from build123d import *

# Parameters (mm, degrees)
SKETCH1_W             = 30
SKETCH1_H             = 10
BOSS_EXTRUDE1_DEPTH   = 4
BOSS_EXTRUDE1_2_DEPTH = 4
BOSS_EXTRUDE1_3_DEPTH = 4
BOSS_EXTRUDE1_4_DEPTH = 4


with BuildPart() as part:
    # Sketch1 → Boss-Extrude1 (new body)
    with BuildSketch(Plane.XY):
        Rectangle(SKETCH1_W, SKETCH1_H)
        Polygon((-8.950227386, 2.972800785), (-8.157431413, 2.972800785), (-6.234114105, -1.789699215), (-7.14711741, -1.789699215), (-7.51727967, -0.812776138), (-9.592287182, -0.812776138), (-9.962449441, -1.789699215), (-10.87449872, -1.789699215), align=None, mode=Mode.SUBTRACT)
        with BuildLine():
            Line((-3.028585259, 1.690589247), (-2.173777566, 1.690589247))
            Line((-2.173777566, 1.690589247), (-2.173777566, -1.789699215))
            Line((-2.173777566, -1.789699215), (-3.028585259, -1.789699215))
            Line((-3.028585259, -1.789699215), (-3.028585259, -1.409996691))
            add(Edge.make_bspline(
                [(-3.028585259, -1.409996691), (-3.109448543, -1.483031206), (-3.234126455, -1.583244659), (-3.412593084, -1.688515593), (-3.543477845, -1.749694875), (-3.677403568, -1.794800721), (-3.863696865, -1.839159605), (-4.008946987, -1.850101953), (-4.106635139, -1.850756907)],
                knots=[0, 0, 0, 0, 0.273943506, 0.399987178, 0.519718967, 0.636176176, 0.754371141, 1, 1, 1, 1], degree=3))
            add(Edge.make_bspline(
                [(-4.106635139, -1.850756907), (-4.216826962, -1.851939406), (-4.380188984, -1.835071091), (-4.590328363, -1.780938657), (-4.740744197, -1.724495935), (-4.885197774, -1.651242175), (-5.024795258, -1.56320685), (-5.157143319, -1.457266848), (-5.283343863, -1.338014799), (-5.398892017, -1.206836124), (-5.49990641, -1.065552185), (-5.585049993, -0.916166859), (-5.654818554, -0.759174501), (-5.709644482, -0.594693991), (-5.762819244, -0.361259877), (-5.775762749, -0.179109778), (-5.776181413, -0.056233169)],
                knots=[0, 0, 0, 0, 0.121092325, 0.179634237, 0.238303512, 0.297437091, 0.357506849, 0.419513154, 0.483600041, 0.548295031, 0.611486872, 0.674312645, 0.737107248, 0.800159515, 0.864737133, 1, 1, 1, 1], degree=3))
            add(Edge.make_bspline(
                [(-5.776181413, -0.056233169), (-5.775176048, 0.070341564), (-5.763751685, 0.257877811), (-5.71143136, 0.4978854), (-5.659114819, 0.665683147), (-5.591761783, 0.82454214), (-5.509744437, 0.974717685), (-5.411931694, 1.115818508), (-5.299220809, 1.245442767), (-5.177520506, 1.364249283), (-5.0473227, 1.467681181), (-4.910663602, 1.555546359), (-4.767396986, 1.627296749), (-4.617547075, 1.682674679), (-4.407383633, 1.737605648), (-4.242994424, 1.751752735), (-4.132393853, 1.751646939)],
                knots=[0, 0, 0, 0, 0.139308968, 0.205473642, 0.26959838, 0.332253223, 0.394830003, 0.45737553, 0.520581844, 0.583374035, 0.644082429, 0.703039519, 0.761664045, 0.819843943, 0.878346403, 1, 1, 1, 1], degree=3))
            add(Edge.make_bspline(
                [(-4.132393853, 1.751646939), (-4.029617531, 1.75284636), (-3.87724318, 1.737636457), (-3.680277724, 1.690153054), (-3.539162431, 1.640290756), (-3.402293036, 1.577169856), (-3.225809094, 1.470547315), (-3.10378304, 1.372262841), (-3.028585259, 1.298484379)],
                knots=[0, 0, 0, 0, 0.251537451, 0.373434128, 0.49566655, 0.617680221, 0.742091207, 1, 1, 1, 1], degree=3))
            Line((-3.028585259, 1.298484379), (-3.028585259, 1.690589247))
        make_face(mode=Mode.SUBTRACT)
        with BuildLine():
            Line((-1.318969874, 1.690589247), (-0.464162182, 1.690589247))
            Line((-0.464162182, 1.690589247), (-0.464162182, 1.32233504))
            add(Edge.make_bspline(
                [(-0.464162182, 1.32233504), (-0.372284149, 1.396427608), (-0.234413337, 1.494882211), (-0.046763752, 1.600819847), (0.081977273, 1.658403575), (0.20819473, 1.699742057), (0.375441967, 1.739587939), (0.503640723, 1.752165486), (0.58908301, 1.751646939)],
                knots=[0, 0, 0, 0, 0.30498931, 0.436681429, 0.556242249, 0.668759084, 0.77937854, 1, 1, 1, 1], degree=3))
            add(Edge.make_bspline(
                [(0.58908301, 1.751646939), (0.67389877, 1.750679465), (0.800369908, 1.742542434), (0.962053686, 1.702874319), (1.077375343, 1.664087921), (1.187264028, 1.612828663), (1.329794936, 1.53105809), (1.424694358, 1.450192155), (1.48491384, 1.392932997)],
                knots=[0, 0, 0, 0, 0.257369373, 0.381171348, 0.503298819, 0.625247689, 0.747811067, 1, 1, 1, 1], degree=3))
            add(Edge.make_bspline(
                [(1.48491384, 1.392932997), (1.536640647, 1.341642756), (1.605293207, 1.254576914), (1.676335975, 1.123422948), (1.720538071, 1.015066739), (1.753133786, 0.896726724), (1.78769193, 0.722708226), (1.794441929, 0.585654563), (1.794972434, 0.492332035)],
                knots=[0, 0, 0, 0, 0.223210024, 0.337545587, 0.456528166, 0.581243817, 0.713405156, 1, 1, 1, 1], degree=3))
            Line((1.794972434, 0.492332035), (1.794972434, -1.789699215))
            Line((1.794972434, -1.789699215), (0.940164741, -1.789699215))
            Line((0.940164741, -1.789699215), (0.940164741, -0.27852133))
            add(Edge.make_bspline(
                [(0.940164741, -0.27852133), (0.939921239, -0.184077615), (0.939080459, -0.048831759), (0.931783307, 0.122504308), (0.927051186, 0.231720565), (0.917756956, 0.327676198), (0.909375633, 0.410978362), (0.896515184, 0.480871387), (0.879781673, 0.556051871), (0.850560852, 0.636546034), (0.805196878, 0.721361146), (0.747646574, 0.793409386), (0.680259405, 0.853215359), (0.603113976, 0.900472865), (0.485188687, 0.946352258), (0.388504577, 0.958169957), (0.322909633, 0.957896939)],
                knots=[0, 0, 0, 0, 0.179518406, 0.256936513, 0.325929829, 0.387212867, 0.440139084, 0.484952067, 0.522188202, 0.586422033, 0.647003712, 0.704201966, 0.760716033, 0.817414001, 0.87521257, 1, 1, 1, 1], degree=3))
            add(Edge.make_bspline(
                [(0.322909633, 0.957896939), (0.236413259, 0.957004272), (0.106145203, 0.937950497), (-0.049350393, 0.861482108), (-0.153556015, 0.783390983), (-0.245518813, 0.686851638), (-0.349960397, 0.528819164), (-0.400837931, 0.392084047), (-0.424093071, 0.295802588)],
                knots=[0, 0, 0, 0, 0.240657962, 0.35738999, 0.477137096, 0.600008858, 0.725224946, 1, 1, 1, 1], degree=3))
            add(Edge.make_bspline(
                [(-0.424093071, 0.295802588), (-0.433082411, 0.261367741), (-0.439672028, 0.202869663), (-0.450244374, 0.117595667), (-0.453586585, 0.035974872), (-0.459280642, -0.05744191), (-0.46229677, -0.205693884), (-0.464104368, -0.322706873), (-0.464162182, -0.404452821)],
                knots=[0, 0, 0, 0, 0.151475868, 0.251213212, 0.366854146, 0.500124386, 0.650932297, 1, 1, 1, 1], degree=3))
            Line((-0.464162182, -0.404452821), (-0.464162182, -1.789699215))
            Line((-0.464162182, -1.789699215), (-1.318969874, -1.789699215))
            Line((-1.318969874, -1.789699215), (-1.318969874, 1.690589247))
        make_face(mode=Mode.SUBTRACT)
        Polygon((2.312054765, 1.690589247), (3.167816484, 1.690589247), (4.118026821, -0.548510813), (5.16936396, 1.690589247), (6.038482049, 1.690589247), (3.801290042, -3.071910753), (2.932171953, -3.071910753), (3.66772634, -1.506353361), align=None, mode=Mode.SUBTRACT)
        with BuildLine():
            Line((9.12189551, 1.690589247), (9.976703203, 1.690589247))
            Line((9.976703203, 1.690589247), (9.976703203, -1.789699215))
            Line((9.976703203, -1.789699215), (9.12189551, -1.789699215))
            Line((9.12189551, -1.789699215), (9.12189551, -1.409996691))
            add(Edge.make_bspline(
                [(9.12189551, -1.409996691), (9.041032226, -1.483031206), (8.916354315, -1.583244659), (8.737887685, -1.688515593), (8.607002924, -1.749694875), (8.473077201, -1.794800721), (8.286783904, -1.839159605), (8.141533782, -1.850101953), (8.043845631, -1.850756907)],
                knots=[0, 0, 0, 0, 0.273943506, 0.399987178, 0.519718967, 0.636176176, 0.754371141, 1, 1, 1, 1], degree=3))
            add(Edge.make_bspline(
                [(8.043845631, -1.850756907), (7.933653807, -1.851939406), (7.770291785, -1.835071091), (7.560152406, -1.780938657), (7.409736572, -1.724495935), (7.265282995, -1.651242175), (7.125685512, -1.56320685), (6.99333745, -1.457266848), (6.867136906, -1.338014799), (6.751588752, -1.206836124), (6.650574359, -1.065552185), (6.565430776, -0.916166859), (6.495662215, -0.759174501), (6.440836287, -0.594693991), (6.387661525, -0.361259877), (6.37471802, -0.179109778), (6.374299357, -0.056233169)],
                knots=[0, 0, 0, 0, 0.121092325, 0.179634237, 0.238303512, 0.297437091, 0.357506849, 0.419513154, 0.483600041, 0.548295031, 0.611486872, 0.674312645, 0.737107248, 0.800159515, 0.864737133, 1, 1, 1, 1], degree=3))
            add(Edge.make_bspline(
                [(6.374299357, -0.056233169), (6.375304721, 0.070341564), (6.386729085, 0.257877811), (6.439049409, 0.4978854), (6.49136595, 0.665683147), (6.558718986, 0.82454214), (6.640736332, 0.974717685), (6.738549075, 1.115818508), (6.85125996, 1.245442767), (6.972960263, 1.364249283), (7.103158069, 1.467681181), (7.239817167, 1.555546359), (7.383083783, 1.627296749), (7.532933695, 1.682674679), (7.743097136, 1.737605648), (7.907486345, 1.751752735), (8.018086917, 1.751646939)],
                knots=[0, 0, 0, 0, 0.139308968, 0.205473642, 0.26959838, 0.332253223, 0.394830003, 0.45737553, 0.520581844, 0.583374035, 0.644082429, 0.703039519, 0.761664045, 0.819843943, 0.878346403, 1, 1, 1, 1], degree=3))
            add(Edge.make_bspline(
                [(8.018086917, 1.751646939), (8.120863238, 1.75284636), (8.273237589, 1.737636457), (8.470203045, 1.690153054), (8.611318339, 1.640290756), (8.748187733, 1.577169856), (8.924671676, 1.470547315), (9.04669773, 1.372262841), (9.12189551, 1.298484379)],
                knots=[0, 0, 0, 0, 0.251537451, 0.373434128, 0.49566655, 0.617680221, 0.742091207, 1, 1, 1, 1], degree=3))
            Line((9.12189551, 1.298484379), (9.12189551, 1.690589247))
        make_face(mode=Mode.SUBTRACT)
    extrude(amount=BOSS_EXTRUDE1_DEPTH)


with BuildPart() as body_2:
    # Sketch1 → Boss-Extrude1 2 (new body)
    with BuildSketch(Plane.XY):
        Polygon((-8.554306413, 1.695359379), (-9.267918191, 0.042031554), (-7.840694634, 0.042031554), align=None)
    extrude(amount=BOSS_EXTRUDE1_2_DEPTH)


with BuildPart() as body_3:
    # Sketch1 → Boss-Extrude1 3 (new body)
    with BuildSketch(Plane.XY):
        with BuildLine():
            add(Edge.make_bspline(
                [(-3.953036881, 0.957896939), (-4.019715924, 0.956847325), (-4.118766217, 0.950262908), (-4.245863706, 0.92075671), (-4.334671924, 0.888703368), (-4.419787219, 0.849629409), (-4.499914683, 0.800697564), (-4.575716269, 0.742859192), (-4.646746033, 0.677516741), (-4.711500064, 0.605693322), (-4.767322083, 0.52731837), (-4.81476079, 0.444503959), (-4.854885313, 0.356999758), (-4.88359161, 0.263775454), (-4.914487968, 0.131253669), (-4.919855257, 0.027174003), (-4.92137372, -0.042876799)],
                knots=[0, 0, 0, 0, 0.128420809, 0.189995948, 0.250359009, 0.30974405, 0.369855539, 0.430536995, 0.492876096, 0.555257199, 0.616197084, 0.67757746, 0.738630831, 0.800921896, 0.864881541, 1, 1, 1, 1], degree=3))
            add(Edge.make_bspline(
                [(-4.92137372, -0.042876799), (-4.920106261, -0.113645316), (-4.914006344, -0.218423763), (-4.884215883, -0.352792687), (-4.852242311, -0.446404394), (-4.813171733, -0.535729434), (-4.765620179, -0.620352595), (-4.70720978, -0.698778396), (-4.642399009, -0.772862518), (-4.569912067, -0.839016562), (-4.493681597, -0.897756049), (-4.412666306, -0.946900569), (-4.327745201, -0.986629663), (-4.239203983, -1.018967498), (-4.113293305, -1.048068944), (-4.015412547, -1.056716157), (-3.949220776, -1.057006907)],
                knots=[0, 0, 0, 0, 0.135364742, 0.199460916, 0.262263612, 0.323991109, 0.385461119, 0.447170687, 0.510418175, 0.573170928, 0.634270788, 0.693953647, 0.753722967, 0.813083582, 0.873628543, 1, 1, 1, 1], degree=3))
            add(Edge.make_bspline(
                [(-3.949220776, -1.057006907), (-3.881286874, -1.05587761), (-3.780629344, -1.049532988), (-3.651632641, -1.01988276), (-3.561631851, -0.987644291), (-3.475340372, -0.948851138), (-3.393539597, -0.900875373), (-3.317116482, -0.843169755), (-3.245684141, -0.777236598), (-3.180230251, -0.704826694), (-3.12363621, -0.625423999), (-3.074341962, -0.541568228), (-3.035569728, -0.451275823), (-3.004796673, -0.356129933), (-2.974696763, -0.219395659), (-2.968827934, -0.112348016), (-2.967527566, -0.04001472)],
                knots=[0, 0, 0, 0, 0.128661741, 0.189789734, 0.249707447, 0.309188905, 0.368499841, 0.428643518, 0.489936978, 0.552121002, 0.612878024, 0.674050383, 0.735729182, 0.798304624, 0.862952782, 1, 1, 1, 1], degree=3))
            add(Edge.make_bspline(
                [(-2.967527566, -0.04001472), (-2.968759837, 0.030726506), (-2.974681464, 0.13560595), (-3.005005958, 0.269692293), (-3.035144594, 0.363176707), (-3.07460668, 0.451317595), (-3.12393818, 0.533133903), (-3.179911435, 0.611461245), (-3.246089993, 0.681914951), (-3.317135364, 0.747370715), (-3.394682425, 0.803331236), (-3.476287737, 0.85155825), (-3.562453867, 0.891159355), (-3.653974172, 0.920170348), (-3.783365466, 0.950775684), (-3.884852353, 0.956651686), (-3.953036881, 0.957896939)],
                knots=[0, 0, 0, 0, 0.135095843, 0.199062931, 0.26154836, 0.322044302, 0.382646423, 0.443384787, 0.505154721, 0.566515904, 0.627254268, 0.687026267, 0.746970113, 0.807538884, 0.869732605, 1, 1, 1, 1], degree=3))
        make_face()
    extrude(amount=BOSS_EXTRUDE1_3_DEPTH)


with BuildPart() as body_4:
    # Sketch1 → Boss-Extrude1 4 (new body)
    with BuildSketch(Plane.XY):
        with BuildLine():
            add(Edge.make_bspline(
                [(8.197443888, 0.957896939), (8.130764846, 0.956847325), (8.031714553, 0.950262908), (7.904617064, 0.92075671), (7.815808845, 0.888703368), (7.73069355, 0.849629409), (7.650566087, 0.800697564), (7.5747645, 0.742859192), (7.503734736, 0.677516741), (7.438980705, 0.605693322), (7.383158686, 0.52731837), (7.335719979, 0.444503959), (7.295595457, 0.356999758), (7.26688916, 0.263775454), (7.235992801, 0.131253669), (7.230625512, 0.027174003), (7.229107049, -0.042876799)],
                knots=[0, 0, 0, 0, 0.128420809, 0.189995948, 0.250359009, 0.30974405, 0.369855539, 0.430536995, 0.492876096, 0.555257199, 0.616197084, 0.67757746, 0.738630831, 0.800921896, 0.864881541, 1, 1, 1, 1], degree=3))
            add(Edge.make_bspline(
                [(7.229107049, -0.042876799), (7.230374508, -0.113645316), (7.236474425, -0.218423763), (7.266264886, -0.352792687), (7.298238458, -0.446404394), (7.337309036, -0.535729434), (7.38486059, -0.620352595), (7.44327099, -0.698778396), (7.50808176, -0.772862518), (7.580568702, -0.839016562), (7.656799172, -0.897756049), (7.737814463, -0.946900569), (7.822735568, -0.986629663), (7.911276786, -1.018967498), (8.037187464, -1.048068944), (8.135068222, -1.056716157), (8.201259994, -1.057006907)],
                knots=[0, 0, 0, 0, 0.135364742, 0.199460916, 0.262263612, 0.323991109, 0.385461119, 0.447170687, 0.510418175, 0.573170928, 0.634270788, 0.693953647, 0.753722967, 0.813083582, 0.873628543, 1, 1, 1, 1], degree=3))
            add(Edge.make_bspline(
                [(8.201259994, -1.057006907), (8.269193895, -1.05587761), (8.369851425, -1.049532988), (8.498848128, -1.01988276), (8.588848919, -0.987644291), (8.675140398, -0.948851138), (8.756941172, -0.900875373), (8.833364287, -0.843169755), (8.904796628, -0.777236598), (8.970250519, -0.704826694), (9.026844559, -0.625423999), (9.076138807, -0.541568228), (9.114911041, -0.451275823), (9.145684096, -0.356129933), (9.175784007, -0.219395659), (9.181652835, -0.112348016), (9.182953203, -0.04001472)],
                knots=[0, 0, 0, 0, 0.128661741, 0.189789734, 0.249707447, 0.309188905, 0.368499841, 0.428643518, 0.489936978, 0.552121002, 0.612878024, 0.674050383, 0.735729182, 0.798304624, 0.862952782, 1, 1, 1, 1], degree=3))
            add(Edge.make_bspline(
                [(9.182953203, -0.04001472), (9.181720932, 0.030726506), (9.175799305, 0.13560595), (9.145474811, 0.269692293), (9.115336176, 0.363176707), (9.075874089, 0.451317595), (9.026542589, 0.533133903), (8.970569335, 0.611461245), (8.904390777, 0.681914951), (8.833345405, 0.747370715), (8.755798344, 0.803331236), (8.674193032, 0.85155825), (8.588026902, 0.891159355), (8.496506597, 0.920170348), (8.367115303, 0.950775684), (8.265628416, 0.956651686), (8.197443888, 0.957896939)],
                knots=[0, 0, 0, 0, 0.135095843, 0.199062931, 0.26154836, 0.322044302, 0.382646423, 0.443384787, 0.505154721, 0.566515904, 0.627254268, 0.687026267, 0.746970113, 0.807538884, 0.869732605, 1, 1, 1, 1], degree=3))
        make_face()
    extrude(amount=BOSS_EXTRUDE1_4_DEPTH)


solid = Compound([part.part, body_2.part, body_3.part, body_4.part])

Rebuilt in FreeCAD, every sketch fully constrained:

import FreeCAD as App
import Part
import Sketcher
Q = App.Units.Quantity


def add_polygon(sketch, points):
    """Adds a closed chain of lines whose ends are joined by coincident constraints."""
    first, n = sketch.GeometryCount, len(points)
    for a, b in zip(points, points[1:] + points[:1]):
        sketch.addGeometry(Part.LineSegment(App.Vector(*a, 0), App.Vector(*b, 0)), False)
    for i in range(n):
        sketch.addConstraint(Sketcher.Constraint("Coincident", first + i, 2, first + (i + 1) % n, 1))

doc = App.newDocument("Part")
body = doc.addObject("PartDesign::Body", "Body")

sketch1 = body.newObject("Sketcher::SketchObject", "Sketch")
sketch1.AttachmentSupport = (doc.getObject("XY_Plane"), [""])
sketch1.MapMode = "FlatFace"
add_polygon(sketch1, [(-15, 5), (-15, -5), (15, -5), (15, 5)])
add_polygon(sketch1, [(3.667726, -1.506353), (2.312055, 1.690589), (3.167816, 1.690589), (4.118027, -0.548511), (5.169364, 1.690589), (6.038482, 1.690589), (3.80129, -3.071911), (2.932172, -3.071911)])
add_polygon(sketch1, [(-10.874499, -1.789699), (-8.950227, 2.972801), (-8.157431, 2.972801), (-6.234114, -1.789699), (-7.147117, -1.789699), (-7.51728, -0.812776), (-9.592287, -0.812776), (-9.962449, -1.789699)])
sketch1.addGeometry(Part.LineSegment(App.Vector(-3.028585, 1.298484, 0), App.Vector(-3.028585, 1.690589, 0)), False)
sketch1.addGeometry(Part.LineSegment(App.Vector(-3.028585, 1.690589, 0), App.Vector(-2.173778, 1.690589, 0)), False)
sketch1.addGeometry(Part.LineSegment(App.Vector(-2.173778, 1.690589, 0), App.Vector(-2.173778, -1.789699, 0)), False)
sketch1.addGeometry(Part.LineSegment(App.Vector(-2.173778, -1.789699, 0), App.Vector(-3.028585, -1.789699, 0)), False)
sketch1.addGeometry(Part.LineSegment(App.Vector(-3.028585, -1.789699, 0), App.Vector(-3.028585, -1.409997, 0)), False)
sketch1.addGeometry(Part.BSplineCurve([App.Vector(-3.028585, -1.409997, 0), App.Vector(-3.109449, -1.483031, 0), App.Vector(-3.234126, -1.583245, 0), App.Vector(-3.412593, -1.688516, 0), App.Vector(-3.543478, -1.749695, 0), App.Vector(-3.677404, -1.794801, 0), App.Vector(-3.863697, -1.83916, 0), App.Vector(-4.008947, -1.850102, 0), App.Vector(-4.106635, -1.850757, 0)], [4, 1, 1, 1, 1, 1, 4], [0, 0.273943506, 0.399987178, 0.519718967, 0.636176176, 0.754371141, 1], False, 3, [1, 1, 1, 1, 1, 1, 1, 1, 1], False), False)
sketch1.addGeometry(Part.BSplineCurve([App.Vector(-4.106635, -1.850757, 0), App.Vector(-4.216827, -1.851939, 0), App.Vector(-4.380189, -1.835071, 0), App.Vector(-4.590328, -1.780939, 0), App.Vector(-4.740744, -1.724496, 0), App.Vector(-4.885198, -1.651242, 0), App.Vector(-5.024795, -1.563207, 0), App.Vector(-5.157143, -1.457267, 0), App.Vector(-5.283344, -1.338015, 0), App.Vector(-5.398892, -1.206836, 0), App.Vector(-5.499906, -1.065552, 0), App.Vector(-5.58505, -0.916167, 0), App.Vector(-5.654819, -0.759175, 0), App.Vector(-5.709644, -0.594694, 0), App.Vector(-5.762819, -0.36126, 0), App.Vector(-5.775763, -0.17911, 0), App.Vector(-5.776181, -0.056233, 0)], [4, 1, 1, 1, 1, 1, 1, 1, 1, 1, 1, 1, 1, 1, 4], [0, 0.121092325, 0.179634237, 0.238303512, 0.297437091, 0.357506849, 0.419513154, 0.483600041, 0.548295031, 0.611486872, 0.674312645, 0.737107248, 0.800159515, 0.864737133, 1], False, 3, [1, 1, 1, 1, 1, 1, 1, 1, 1, 1, 1, 1, 1, 1, 1, 1, 1], False), False)
sketch1.addGeometry(Part.BSplineCurve([App.Vector(-5.776181, -0.056233, 0), App.Vector(-5.775176, 0.070342, 0), App.Vector(-5.763752, 0.257878, 0), App.Vector(-5.711431, 0.497885, 0), App.Vector(-5.659115, 0.665683, 0), App.Vector(-5.591762, 0.824542, 0), App.Vector(-5.509744, 0.974718, 0), App.Vector(-5.411932, 1.115819, 0), App.Vector(-5.299221, 1.245443, 0), App.Vector(-5.177521, 1.364249, 0), App.Vector(-5.047323, 1.467681, 0), App.Vector(-4.910664, 1.555546, 0), App.Vector(-4.767397, 1.627297, 0), App.Vector(-4.617547, 1.682675, 0), App.Vector(-4.407384, 1.737606, 0), App.Vector(-4.242994, 1.751753, 0), App.Vector(-4.132394, 1.751647, 0)], [4, 1, 1, 1, 1, 1, 1, 1, 1, 1, 1, 1, 1, 1, 4], [0, 0.139308968, 0.205473642, 0.26959838, 0.332253223, 0.394830003, 0.45737553, 0.520581844, 0.583374035, 0.644082429, 0.703039519, 0.761664045, 0.819843943, 0.878346403, 1], False, 3, [1, 1, 1, 1, 1, 1, 1, 1, 1, 1, 1, 1, 1, 1, 1, 1, 1], False), False)
sketch1.addGeometry(Part.BSplineCurve([App.Vector(-4.132394, 1.751647, 0), App.Vector(-4.029618, 1.752846, 0), App.Vector(-3.877243, 1.737636, 0), App.Vector(-3.680278, 1.690153, 0), App.Vector(-3.539162, 1.640291, 0), App.Vector(-3.402293, 1.57717, 0), App.Vector(-3.225809, 1.470547, 0), App.Vector(-3.103783, 1.372263, 0), App.Vector(-3.028585, 1.298484, 0)], [4, 1, 1, 1, 1, 1, 4], [0, 0.251537451, 0.373434128, 0.49566655, 0.617680221, 0.742091207, 1], False, 3, [1, 1, 1, 1, 1, 1, 1, 1, 1], False), False)
sketch1.addGeometry(Part.LineSegment(App.Vector(-1.31897, -1.789699, 0), App.Vector(-1.31897, 1.690589, 0)), False)
sketch1.addGeometry(Part.LineSegment(App.Vector(-1.31897, 1.690589, 0), App.Vector(-0.464162, 1.690589, 0)), False)
sketch1.addGeometry(Part.LineSegment(App.Vector(-0.464162, 1.690589, 0), App.Vector(-0.464162, 1.322335, 0)), False)
sketch1.addGeometry(Part.BSplineCurve([App.Vector(-0.464162, 1.322335, 0), App.Vector(-0.372284, 1.396428, 0), App.Vector(-0.234413, 1.494882, 0), App.Vector(-0.046764, 1.60082, 0), App.Vector(0.081977, 1.658404, 0), App.Vector(0.208195, 1.699742, 0), App.Vector(0.375442, 1.739588, 0), App.Vector(0.503641, 1.752165, 0), App.Vector(0.589083, 1.751647, 0)], [4, 1, 1, 1, 1, 1, 4], [0, 0.30498931, 0.436681429, 0.556242249, 0.668759084, 0.77937854, 1], False, 3, [1, 1, 1, 1, 1, 1, 1, 1, 1], False), False)
sketch1.addGeometry(Part.BSplineCurve([App.Vector(0.589083, 1.751647, 0), App.Vector(0.673899, 1.750679, 0), App.Vector(0.80037, 1.742542, 0), App.Vector(0.962054, 1.702874, 0), App.Vector(1.077375, 1.664088, 0), App.Vector(1.187264, 1.612829, 0), App.Vector(1.329795, 1.531058, 0), App.Vector(1.424694, 1.450192, 0), App.Vector(1.484914, 1.392933, 0)], [4, 1, 1, 1, 1, 1, 4], [0, 0.257369373, 0.381171348, 0.503298819, 0.625247689, 0.747811067, 1], False, 3, [1, 1, 1, 1, 1, 1, 1, 1, 1], False), False)
sketch1.addGeometry(Part.BSplineCurve([App.Vector(1.484914, 1.392933, 0), App.Vector(1.536641, 1.341643, 0), App.Vector(1.605293, 1.254577, 0), App.Vector(1.676336, 1.123423, 0), App.Vector(1.720538, 1.015067, 0), App.Vector(1.753134, 0.896727, 0), App.Vector(1.787692, 0.722708, 0), App.Vector(1.794442, 0.585655, 0), App.Vector(1.794972, 0.492332, 0)], [4, 1, 1, 1, 1, 1, 4], [0, 0.223210024, 0.337545587, 0.456528166, 0.581243817, 0.713405156, 1], False, 3, [1, 1, 1, 1, 1, 1, 1, 1, 1], False), False)
sketch1.addGeometry(Part.LineSegment(App.Vector(1.794972, 0.492332, 0), App.Vector(1.794972, -1.789699, 0)), False)
sketch1.addGeometry(Part.LineSegment(App.Vector(1.794972, -1.789699, 0), App.Vector(0.940165, -1.789699, 0)), False)
sketch1.addGeometry(Part.LineSegment(App.Vector(0.940165, -1.789699, 0), App.Vector(0.940165, -0.278521, 0)), False)
sketch1.addGeometry(Part.BSplineCurve([App.Vector(0.940165, -0.278521, 0), App.Vector(0.939921, -0.184078, 0), App.Vector(0.93908, -0.048832, 0), App.Vector(0.931783, 0.122504, 0), App.Vector(0.927051, 0.231721, 0), App.Vector(0.917757, 0.327676, 0), App.Vector(0.909376, 0.410978, 0), App.Vector(0.896515, 0.480871, 0), App.Vector(0.879782, 0.556052, 0), App.Vector(0.850561, 0.636546, 0), App.Vector(0.805197, 0.721361, 0), App.Vector(0.747647, 0.793409, 0), App.Vector(0.680259, 0.853215, 0), App.Vector(0.603114, 0.900473, 0), App.Vector(0.485189, 0.946352, 0), App.Vector(0.388505, 0.95817, 0), App.Vector(0.32291, 0.957897, 0)], [4, 1, 1, 1, 1, 1, 1, 1, 1, 1, 1, 1, 1, 1, 4], [0, 0.179518406, 0.256936513, 0.325929829, 0.387212867, 0.440139084, 0.484952067, 0.522188202, 0.586422033, 0.647003712, 0.704201966, 0.760716033, 0.817414001, 0.87521257, 1], False, 3, [1, 1, 1, 1, 1, 1, 1, 1, 1, 1, 1, 1, 1, 1, 1, 1, 1], False), False)
sketch1.addGeometry(Part.BSplineCurve([App.Vector(0.32291, 0.957897, 0), App.Vector(0.236413, 0.957004, 0), App.Vector(0.106145, 0.93795, 0), App.Vector(-0.04935, 0.861482, 0), App.Vector(-0.153556, 0.783391, 0), App.Vector(-0.245519, 0.686852, 0), App.Vector(-0.34996, 0.528819, 0), App.Vector(-0.400838, 0.392084, 0), App.Vector(-0.424093, 0.295803, 0)], [4, 1, 1, 1, 1, 1, 4], [0, 0.240657962, 0.35738999, 0.477137096, 0.600008858, 0.725224946, 1], False, 3, [1, 1, 1, 1, 1, 1, 1, 1, 1], False), False)
sketch1.addGeometry(Part.BSplineCurve([App.Vector(-0.424093, 0.295803, 0), App.Vector(-0.433082, 0.261368, 0), App.Vector(-0.439672, 0.20287, 0), App.Vector(-0.450244, 0.117596, 0), App.Vector(-0.453587, 0.035975, 0), App.Vector(-0.459281, -0.057442, 0), App.Vector(-0.462297, -0.205694, 0), App.Vector(-0.464104, -0.322707, 0), App.Vector(-0.464162, -0.404453, 0)], [4, 1, 1, 1, 1, 1, 4], [0, 0.151475868, 0.251213212, 0.366854146, 0.500124386, 0.650932297, 1], False, 3, [1, 1, 1, 1, 1, 1, 1, 1, 1], False), False)
sketch1.addGeometry(Part.LineSegment(App.Vector(-0.464162, -0.404453, 0), App.Vector(-0.464162, -1.789699, 0)), False)
sketch1.addGeometry(Part.LineSegment(App.Vector(-0.464162, -1.789699, 0), App.Vector(-1.31897, -1.789699, 0)), False)
sketch1.addGeometry(Part.LineSegment(App.Vector(9.121896, 1.298484, 0), App.Vector(9.121896, 1.690589, 0)), False)
sketch1.addGeometry(Part.LineSegment(App.Vector(9.121896, 1.690589, 0), App.Vector(9.976703, 1.690589, 0)), False)
sketch1.addGeometry(Part.LineSegment(App.Vector(9.976703, 1.690589, 0), App.Vector(9.976703, -1.789699, 0)), False)
sketch1.addGeometry(Part.LineSegment(App.Vector(9.976703, -1.789699, 0), App.Vector(9.121896, -1.789699, 0)), False)
sketch1.addGeometry(Part.LineSegment(App.Vector(9.121896, -1.789699, 0), App.Vector(9.121896, -1.409997, 0)), False)
sketch1.addGeometry(Part.BSplineCurve([App.Vector(9.121896, -1.409997, 0), App.Vector(9.041032, -1.483031, 0), App.Vector(8.916354, -1.583245, 0), App.Vector(8.737888, -1.688516, 0), App.Vector(8.607003, -1.749695, 0), App.Vector(8.473077, -1.794801, 0), App.Vector(8.286784, -1.83916, 0), App.Vector(8.141534, -1.850102, 0), App.Vector(8.043846, -1.850757, 0)], [4, 1, 1, 1, 1, 1, 4], [0, 0.273943506, 0.399987178, 0.519718967, 0.636176176, 0.754371141, 1], False, 3, [1, 1, 1, 1, 1, 1, 1, 1, 1], False), False)
sketch1.addGeometry(Part.BSplineCurve([App.Vector(8.043846, -1.850757, 0), App.Vector(7.933654, -1.851939, 0), App.Vector(7.770292, -1.835071, 0), App.Vector(7.560152, -1.780939, 0), App.Vector(7.409737, -1.724496, 0), App.Vector(7.265283, -1.651242, 0), App.Vector(7.125686, -1.563207, 0), App.Vector(6.993337, -1.457267, 0), App.Vector(6.867137, -1.338015, 0), App.Vector(6.751589, -1.206836, 0), App.Vector(6.650574, -1.065552, 0), App.Vector(6.565431, -0.916167, 0), App.Vector(6.495662, -0.759175, 0), App.Vector(6.440836, -0.594694, 0), App.Vector(6.387662, -0.36126, 0), App.Vector(6.374718, -0.17911, 0), App.Vector(6.374299, -0.056233, 0)], [4, 1, 1, 1, 1, 1, 1, 1, 1, 1, 1, 1, 1, 1, 4], [0, 0.121092325, 0.179634237, 0.238303512, 0.297437091, 0.357506849, 0.419513154, 0.483600041, 0.548295031, 0.611486872, 0.674312645, 0.737107248, 0.800159515, 0.864737133, 1], False, 3, [1, 1, 1, 1, 1, 1, 1, 1, 1, 1, 1, 1, 1, 1, 1, 1, 1], False), False)
sketch1.addGeometry(Part.BSplineCurve([App.Vector(6.374299, -0.056233, 0), App.Vector(6.375305, 0.070342, 0), App.Vector(6.386729, 0.257878, 0), App.Vector(6.439049, 0.497885, 0), App.Vector(6.491366, 0.665683, 0), App.Vector(6.558719, 0.824542, 0), App.Vector(6.640736, 0.974718, 0), App.Vector(6.738549, 1.115819, 0), App.Vector(6.85126, 1.245443, 0), App.Vector(6.97296, 1.364249, 0), App.Vector(7.103158, 1.467681, 0), App.Vector(7.239817, 1.555546, 0), App.Vector(7.383084, 1.627297, 0), App.Vector(7.532934, 1.682675, 0), App.Vector(7.743097, 1.737606, 0), App.Vector(7.907486, 1.751753, 0), App.Vector(8.018087, 1.751647, 0)], [4, 1, 1, 1, 1, 1, 1, 1, 1, 1, 1, 1, 1, 1, 4], [0, 0.139308968, 0.205473642, 0.26959838, 0.332253223, 0.394830003, 0.45737553, 0.520581844, 0.583374035, 0.644082429, 0.703039519, 0.761664045, 0.819843943, 0.878346403, 1], False, 3, [1, 1, 1, 1, 1, 1, 1, 1, 1, 1, 1, 1, 1, 1, 1, 1, 1], False), False)
sketch1.addGeometry(Part.BSplineCurve([App.Vector(8.018087, 1.751647, 0), App.Vector(8.120863, 1.752846, 0), App.Vector(8.273238, 1.737636, 0), App.Vector(8.470203, 1.690153, 0), App.Vector(8.611318, 1.640291, 0), App.Vector(8.748188, 1.57717, 0), App.Vector(8.924672, 1.470547, 0), App.Vector(9.046698, 1.372263, 0), App.Vector(9.121896, 1.298484, 0)], [4, 1, 1, 1, 1, 1, 4], [0, 0.251537451, 0.373434128, 0.49566655, 0.617680221, 0.742091207, 1], False, 3, [1, 1, 1, 1, 1, 1, 1, 1, 1], False), False)
sketch1.addConstraint([
    Sketcher.Constraint("Block", 25),
    Sketcher.Constraint("Block", 26),
    Sketcher.Constraint("Block", 27),
    Sketcher.Constraint("Block", 28),
    Sketcher.Constraint("Block", 32),
    Sketcher.Constraint("Block", 33),
    Sketcher.Constraint("Block", 34),
    Sketcher.Constraint("Block", 38),
    Sketcher.Constraint("Block", 39),
    Sketcher.Constraint("Block", 40),
    Sketcher.Constraint("Block", 48),
    Sketcher.Constraint("Block", 49),
    Sketcher.Constraint("Block", 50),
    Sketcher.Constraint("Block", 51),
    Sketcher.Constraint("Coincident", 20, 2, 21, 1),
    Sketcher.Constraint("Coincident", 21, 2, 22, 1),
    Sketcher.Constraint("Coincident", 22, 2, 23, 1),
    Sketcher.Constraint("Coincident", 23, 2, 24, 1),
    Sketcher.Constraint("Coincident", 24, 2, 25, 1),
    Sketcher.Constraint("Coincident", 28, 2, 20, 1),
    Sketcher.Constraint("Coincident", 29, 2, 30, 1),
    Sketcher.Constraint("Coincident", 30, 2, 31, 1),
    Sketcher.Constraint("Coincident", 31, 2, 32, 1),
    Sketcher.Constraint("Coincident", 34, 2, 35, 1),
    Sketcher.Constraint("Coincident", 35, 2, 36, 1),
    Sketcher.Constraint("Coincident", 36, 2, 37, 1),
    Sketcher.Constraint("Coincident", 37, 2, 38, 1),
    Sketcher.Constraint("Coincident", 40, 2, 41, 1),
    Sketcher.Constraint("Coincident", 41, 2, 42, 1),
    Sketcher.Constraint("Coincident", 42, 2, 29, 1),
    Sketcher.Constraint("Coincident", 43, 2, 44, 1),
    Sketcher.Constraint("Coincident", 44, 2, 45, 1),
    Sketcher.Constraint("Coincident", 45, 2, 46, 1),
    Sketcher.Constraint("Coincident", 46, 2, 47, 1),
    Sketcher.Constraint("Coincident", 47, 2, 48, 1),
    Sketcher.Constraint("Coincident", 51, 2, 43, 1),
    Sketcher.Constraint("Vertical", 0),
    Sketcher.Constraint("Horizontal", 1),
    Sketcher.Constraint("Vertical", 2),
    Sketcher.Constraint("Horizontal", 3),
    Sketcher.Constraint("Horizontal", 5),
    Sketcher.Constraint("Horizontal", 8),
    Sketcher.Constraint("Horizontal", 10),
    Sketcher.Constraint("Horizontal", 13),
    Sketcher.Constraint("Horizontal", 15),
    Sketcher.Constraint("Horizontal", 17),
    Sketcher.Constraint("Horizontal", 19),
    Sketcher.Constraint("Vertical", 20),
    Sketcher.Constraint("Horizontal", 21),
    Sketcher.Constraint("Vertical", 22),
    Sketcher.Constraint("Horizontal", 23),
    Sketcher.Constraint("Vertical", 24),
    Sketcher.Constraint("Vertical", 29),
    Sketcher.Constraint("Horizontal", 30),
    Sketcher.Constraint("Vertical", 31),
    Sketcher.Constraint("Vertical", 35),
    Sketcher.Constraint("Horizontal", 36),
    Sketcher.Constraint("Vertical", 37),
    Sketcher.Constraint("Vertical", 41),
    Sketcher.Constraint("Horizontal", 42),
    Sketcher.Constraint("Vertical", 43),
    Sketcher.Constraint("Horizontal", 44),
    Sketcher.Constraint("Vertical", 45),
    Sketcher.Constraint("Horizontal", 46),
    Sketcher.Constraint("Vertical", 47),
    Sketcher.Constraint("DistanceX", 1, 1, 1, 2, Q("30 mm")),
    Sketcher.Constraint("DistanceY", 0, 2, 0, 1, Q("10 mm")),
    Sketcher.Constraint("DistanceX", 0, 2, -1, 1, Q("15 mm")),
    Sketcher.Constraint("DistanceY", 0, 2, -1, 1, Q("5 mm")),
    Sketcher.Constraint("Distance", 14, Q("5.136201 mm")),
    Sketcher.Constraint("Distance", 16, Q("1.0447 mm")),
    Sketcher.Constraint("Distance", 18, Q("1.0447 mm")),
    Sketcher.Constraint("DistanceX", 5, 1, 5, 2, Q("0.855762 mm")),
    Sketcher.Constraint("DistanceX", 8, 1, 8, 2, Q("0.869118 mm")),
    Sketcher.Constraint("DistanceX", 10, 2, 10, 1, Q("0.869118 mm")),
    Sketcher.Constraint("DistanceX", 19, 2, 19, 1, Q("0.912049 mm")),
    Sketcher.Constraint("DistanceY", 22, 2, 22, 1, Q("3.480288 mm")),
    Sketcher.Constraint("DistanceY", 29, 1, 29, 2, Q("3.480288 mm")),
    Sketcher.Constraint("DistanceY", 35, 2, 35, 1, Q("2.282031 mm")),
    Sketcher.Constraint("DistanceY", 45, 2, 45, 1, Q("3.480288 mm")),
    Sketcher.Constraint("DistanceY", -1, 1, 12, 2, Q("2.972801 mm")),
    Sketcher.Constraint("DistanceY", 14, 2, -1, 1, Q("1.789699 mm")),
    Sketcher.Constraint("DistanceY", 18, 2, -1, 1, Q("1.789699 mm")),
    Sketcher.Constraint("DistanceX", 19, 2, -1, 1, Q("10.874499 mm")),
    Sketcher.Constraint("DistanceY", 22, 2, -1, 1, Q("1.789699 mm")),
    Sketcher.Constraint("DistanceY", 41, 2, -1, 1, Q("1.789699 mm")),
    Sketcher.Constraint("DistanceY", 45, 2, -1, 1, Q("1.789699 mm")),
    Sketcher.Constraint("DistanceY", 6, 2, 5, 2, Q("2.2391 mm")),
    Sketcher.Constraint("DistanceY", 6, 2, 7, 2, Q("2.2391 mm")),
    Sketcher.Constraint("DistanceY", 9, 2, 6, 2, Q("2.5234 mm")),
    Sketcher.Constraint("DistanceX", 11, 2, 6, 2, Q("0.4503 mm")),
    Sketcher.Constraint("DistanceX", 12, 2, 10, 2, Q("11.882399 mm")),
    Sketcher.Constraint("DistanceX", 35, 2, 10, 2, Q("1.1372 mm")),
    Sketcher.Constraint("DistanceY", 6, 2, 43, 2, Q("2.2391 mm")),
    Sketcher.Constraint("Distance", 6, Q("2.432379 mm")),
    Sketcher.Constraint("Distance", 9, Q("5.26179 mm")),
    Sketcher.Constraint("DistanceX", 13, 1, 13, 2, Q("0.792796 mm")),
    Sketcher.Constraint("DistanceX", 15, 2, 15, 1, Q("0.913003 mm")),
    Sketcher.Constraint("DistanceX", 17, 2, 17, 1, Q("2.075008 mm")),
    Sketcher.Constraint("DistanceX", 21, 1, 21, 2, Q("0.854808 mm")),
    Sketcher.Constraint("DistanceX", 30, 1, 30, 2, Q("0.854808 mm")),
    Sketcher.Constraint("DistanceX", 44, 1, 44, 2, Q("0.854808 mm")),
    Sketcher.Constraint("DistanceX", 4, 2, 7, 2, Q("2.857309 mm")),
    Sketcher.Constraint("Distance", 4, Q("3.472504 mm")),
])
pad1 = body.newObject("PartDesign::Pad", "Pad")
pad1.Profile = sketch1
pad1.Length = 4
body2 = doc.addObject("PartDesign::Body", "Body001")

sketch2 = body2.newObject("Sketcher::SketchObject", "Sketch001")
sketch2.AttachmentSupport = (doc.getObject("XY_Plane001"), [""])
sketch2.MapMode = "FlatFace"
add_polygon(sketch2, [(-8.6, 1.7), (-9.3, 0), (-7.8, 0)])
sketch2.addConstraint([
    Sketcher.Constraint("Horizontal", 1),
    Sketcher.Constraint("Equal", 0, 2),
    Sketcher.Constraint("Distance", 0, Q("1.800759 mm")),
    Sketcher.Constraint("DistanceX", 1, 1, 1, 2, Q("1.427224 mm")),
    Sketcher.Constraint("DistanceX", 0, 2, -1, 1, Q("9.267918 mm")),
    Sketcher.Constraint("DistanceY", -1, 1, 0, 2, Q("0.042032 mm")),
])
pad2 = body2.newObject("PartDesign::Pad", "Pad001")
pad2.Profile = sketch2
pad2.Length = 4
body3 = doc.addObject("PartDesign::Body", "Body002")

sketch3 = body3.newObject("Sketcher::SketchObject", "Sketch002")
sketch3.AttachmentSupport = (doc.getObject("XY_Plane002"), [""])
sketch3.MapMode = "FlatFace"
sketch3.addGeometry([
    Part.BSplineCurve([App.Vector(-3.953037, 0.957897, 0), App.Vector(-4.019716, 0.956847, 0), App.Vector(-4.118766, 0.950263, 0), App.Vector(-4.245864, 0.920757, 0), App.Vector(-4.334672, 0.888703, 0), App.Vector(-4.419787, 0.849629, 0), App.Vector(-4.499915, 0.800698, 0), App.Vector(-4.575716, 0.742859, 0), App.Vector(-4.646746, 0.677517, 0), App.Vector(-4.7115, 0.605693, 0), App.Vector(-4.767322, 0.527318, 0), App.Vector(-4.814761, 0.444504, 0), App.Vector(-4.854885, 0.357, 0), App.Vector(-4.883592, 0.263775, 0), App.Vector(-4.914488, 0.131254, 0), App.Vector(-4.919855, 0.027174, 0), App.Vector(-4.921374, -0.042877, 0)], [4, 1, 1, 1, 1, 1, 1, 1, 1, 1, 1, 1, 1, 1, 4], [0, 0.128420809, 0.189995948, 0.250359009, 0.30974405, 0.369855539, 0.430536995, 0.492876096, 0.555257199, 0.616197084, 0.67757746, 0.738630831, 0.800921896, 0.864881541, 1], False, 3, [1, 1, 1, 1, 1, 1, 1, 1, 1, 1, 1, 1, 1, 1, 1, 1, 1], False),
    Part.BSplineCurve([App.Vector(-4.921374, -0.042877, 0), App.Vector(-4.920106, -0.113645, 0), App.Vector(-4.914006, -0.218424, 0), App.Vector(-4.884216, -0.352793, 0), App.Vector(-4.852242, -0.446404, 0), App.Vector(-4.813172, -0.535729, 0), App.Vector(-4.76562, -0.620353, 0), App.Vector(-4.70721, -0.698778, 0), App.Vector(-4.642399, -0.772863, 0), App.Vector(-4.569912, -0.839017, 0), App.Vector(-4.493682, -0.897756, 0), App.Vector(-4.412666, -0.946901, 0), App.Vector(-4.327745, -0.98663, 0), App.Vector(-4.239204, -1.018967, 0), App.Vector(-4.113293, -1.048069, 0), App.Vector(-4.015413, -1.056716, 0), App.Vector(-3.949221, -1.057007, 0)], [4, 1, 1, 1, 1, 1, 1, 1, 1, 1, 1, 1, 1, 1, 4], [0, 0.135364742, 0.199460916, 0.262263612, 0.323991109, 0.385461119, 0.447170687, 0.510418175, 0.573170928, 0.634270788, 0.693953647, 0.753722967, 0.813083582, 0.873628543, 1], False, 3, [1, 1, 1, 1, 1, 1, 1, 1, 1, 1, 1, 1, 1, 1, 1, 1, 1], False),
    Part.BSplineCurve([App.Vector(-3.949221, -1.057007, 0), App.Vector(-3.881287, -1.055878, 0), App.Vector(-3.780629, -1.049533, 0), App.Vector(-3.651633, -1.019883, 0), App.Vector(-3.561632, -0.987644, 0), App.Vector(-3.47534, -0.948851, 0), App.Vector(-3.39354, -0.900875, 0), App.Vector(-3.317116, -0.84317, 0), App.Vector(-3.245684, -0.777237, 0), App.Vector(-3.18023, -0.704827, 0), App.Vector(-3.123636, -0.625424, 0), App.Vector(-3.074342, -0.541568, 0), App.Vector(-3.03557, -0.451276, 0), App.Vector(-3.004797, -0.35613, 0), App.Vector(-2.974697, -0.219396, 0), App.Vector(-2.968828, -0.112348, 0), App.Vector(-2.967528, -0.040015, 0)], [4, 1, 1, 1, 1, 1, 1, 1, 1, 1, 1, 1, 1, 1, 4], [0, 0.128661741, 0.189789734, 0.249707447, 0.309188905, 0.368499841, 0.428643518, 0.489936978, 0.552121002, 0.612878024, 0.674050383, 0.735729182, 0.798304624, 0.862952782, 1], False, 3, [1, 1, 1, 1, 1, 1, 1, 1, 1, 1, 1, 1, 1, 1, 1, 1, 1], False),
    Part.BSplineCurve([App.Vector(-2.967528, -0.040015, 0), App.Vector(-2.96876, 0.030727, 0), App.Vector(-2.974681, 0.135606, 0), App.Vector(-3.005006, 0.269692, 0), App.Vector(-3.035145, 0.363177, 0), App.Vector(-3.074607, 0.451318, 0), App.Vector(-3.123938, 0.533134, 0), App.Vector(-3.179911, 0.611461, 0), App.Vector(-3.24609, 0.681915, 0), App.Vector(-3.317135, 0.747371, 0), App.Vector(-3.394682, 0.803331, 0), App.Vector(-3.476288, 0.851558, 0), App.Vector(-3.562454, 0.891159, 0), App.Vector(-3.653974, 0.92017, 0), App.Vector(-3.783365, 0.950776, 0), App.Vector(-3.884852, 0.956652, 0), App.Vector(-3.953037, 0.957897, 0)], [4, 1, 1, 1, 1, 1, 1, 1, 1, 1, 1, 1, 1, 1, 4], [0, 0.135095843, 0.199062931, 0.26154836, 0.322044302, 0.382646423, 0.443384787, 0.505154721, 0.566515904, 0.627254268, 0.687026267, 0.746970113, 0.807538884, 0.869732605, 1], False, 3, [1, 1, 1, 1, 1, 1, 1, 1, 1, 1, 1, 1, 1, 1, 1, 1, 1], False),
], False)
sketch3.addConstraint([
    Sketcher.Constraint("Block", 0),
    Sketcher.Constraint("Block", 1),
    Sketcher.Constraint("Block", 2),
    Sketcher.Constraint("Block", 3),
])
pad3 = body3.newObject("PartDesign::Pad", "Pad002")
pad3.Profile = sketch3
pad3.Length = 4
body4 = doc.addObject("PartDesign::Body", "Body003")

sketch4 = body4.newObject("Sketcher::SketchObject", "Sketch003")
sketch4.AttachmentSupport = (doc.getObject("XY_Plane003"), [""])
sketch4.MapMode = "FlatFace"
sketch4.addGeometry([
    Part.BSplineCurve([App.Vector(8.197444, 0.957897, 0), App.Vector(8.130765, 0.956847, 0), App.Vector(8.031715, 0.950263, 0), App.Vector(7.904617, 0.920757, 0), App.Vector(7.815809, 0.888703, 0), App.Vector(7.730694, 0.849629, 0), App.Vector(7.650566, 0.800698, 0), App.Vector(7.574764, 0.742859, 0), App.Vector(7.503735, 0.677517, 0), App.Vector(7.438981, 0.605693, 0), App.Vector(7.383159, 0.527318, 0), App.Vector(7.33572, 0.444504, 0), App.Vector(7.295595, 0.357, 0), App.Vector(7.266889, 0.263775, 0), App.Vector(7.235993, 0.131254, 0), App.Vector(7.230626, 0.027174, 0), App.Vector(7.229107, -0.042877, 0)], [4, 1, 1, 1, 1, 1, 1, 1, 1, 1, 1, 1, 1, 1, 4], [0, 0.128420809, 0.189995948, 0.250359009, 0.30974405, 0.369855539, 0.430536995, 0.492876096, 0.555257199, 0.616197084, 0.67757746, 0.738630831, 0.800921896, 0.864881541, 1], False, 3, [1, 1, 1, 1, 1, 1, 1, 1, 1, 1, 1, 1, 1, 1, 1, 1, 1], False),
    Part.BSplineCurve([App.Vector(7.229107, -0.042877, 0), App.Vector(7.230375, -0.113645, 0), App.Vector(7.236474, -0.218424, 0), App.Vector(7.266265, -0.352793, 0), App.Vector(7.298238, -0.446404, 0), App.Vector(7.337309, -0.535729, 0), App.Vector(7.384861, -0.620353, 0), App.Vector(7.443271, -0.698778, 0), App.Vector(7.508082, -0.772863, 0), App.Vector(7.580569, -0.839017, 0), App.Vector(7.656799, -0.897756, 0), App.Vector(7.737814, -0.946901, 0), App.Vector(7.822736, -0.98663, 0), App.Vector(7.911277, -1.018967, 0), App.Vector(8.037187, -1.048069, 0), App.Vector(8.135068, -1.056716, 0), App.Vector(8.20126, -1.057007, 0)], [4, 1, 1, 1, 1, 1, 1, 1, 1, 1, 1, 1, 1, 1, 4], [0, 0.135364742, 0.199460916, 0.262263612, 0.323991109, 0.385461119, 0.447170687, 0.510418175, 0.573170928, 0.634270788, 0.693953647, 0.753722967, 0.813083582, 0.873628543, 1], False, 3, [1, 1, 1, 1, 1, 1, 1, 1, 1, 1, 1, 1, 1, 1, 1, 1, 1], False),
    Part.BSplineCurve([App.Vector(8.20126, -1.057007, 0), App.Vector(8.269194, -1.055878, 0), App.Vector(8.369851, -1.049533, 0), App.Vector(8.498848, -1.019883, 0), App.Vector(8.588849, -0.987644, 0), App.Vector(8.67514, -0.948851, 0), App.Vector(8.756941, -0.900875, 0), App.Vector(8.833364, -0.84317, 0), App.Vector(8.904797, -0.777237, 0), App.Vector(8.970251, -0.704827, 0), App.Vector(9.026845, -0.625424, 0), App.Vector(9.076139, -0.541568, 0), App.Vector(9.114911, -0.451276, 0), App.Vector(9.145684, -0.35613, 0), App.Vector(9.175784, -0.219396, 0), App.Vector(9.181653, -0.112348, 0), App.Vector(9.182953, -0.040015, 0)], [4, 1, 1, 1, 1, 1, 1, 1, 1, 1, 1, 1, 1, 1, 4], [0, 0.128661741, 0.189789734, 0.249707447, 0.309188905, 0.368499841, 0.428643518, 0.489936978, 0.552121002, 0.612878024, 0.674050383, 0.735729182, 0.798304624, 0.862952782, 1], False, 3, [1, 1, 1, 1, 1, 1, 1, 1, 1, 1, 1, 1, 1, 1, 1, 1, 1], False),
    Part.BSplineCurve([App.Vector(9.182953, -0.040015, 0), App.Vector(9.181721, 0.030727, 0), App.Vector(9.175799, 0.135606, 0), App.Vector(9.145475, 0.269692, 0), App.Vector(9.115336, 0.363177, 0), App.Vector(9.075874, 0.451318, 0), App.Vector(9.026543, 0.533134, 0), App.Vector(8.970569, 0.611461, 0), App.Vector(8.904391, 0.681915, 0), App.Vector(8.833345, 0.747371, 0), App.Vector(8.755798, 0.803331, 0), App.Vector(8.674193, 0.851558, 0), App.Vector(8.588027, 0.891159, 0), App.Vector(8.496507, 0.92017, 0), App.Vector(8.367115, 0.950776, 0), App.Vector(8.265628, 0.956652, 0), App.Vector(8.197444, 0.957897, 0)], [4, 1, 1, 1, 1, 1, 1, 1, 1, 1, 1, 1, 1, 1, 4], [0, 0.135095843, 0.199062931, 0.26154836, 0.322044302, 0.382646423, 0.443384787, 0.505154721, 0.566515904, 0.627254268, 0.687026267, 0.746970113, 0.807538884, 0.869732605, 1], False, 3, [1, 1, 1, 1, 1, 1, 1, 1, 1, 1, 1, 1, 1, 1, 1, 1, 1], False),
], False)
sketch4.addConstraint([
    Sketcher.Constraint("Block", 0),
    Sketcher.Constraint("Block", 1),
    Sketcher.Constraint("Block", 2),
    Sketcher.Constraint("Block", 3),
])
pad4 = body4.newObject("PartDesign::Pad", "Pad003")
pad4.Profile = sketch4
pad4.Length = 4

doc.recompute()
